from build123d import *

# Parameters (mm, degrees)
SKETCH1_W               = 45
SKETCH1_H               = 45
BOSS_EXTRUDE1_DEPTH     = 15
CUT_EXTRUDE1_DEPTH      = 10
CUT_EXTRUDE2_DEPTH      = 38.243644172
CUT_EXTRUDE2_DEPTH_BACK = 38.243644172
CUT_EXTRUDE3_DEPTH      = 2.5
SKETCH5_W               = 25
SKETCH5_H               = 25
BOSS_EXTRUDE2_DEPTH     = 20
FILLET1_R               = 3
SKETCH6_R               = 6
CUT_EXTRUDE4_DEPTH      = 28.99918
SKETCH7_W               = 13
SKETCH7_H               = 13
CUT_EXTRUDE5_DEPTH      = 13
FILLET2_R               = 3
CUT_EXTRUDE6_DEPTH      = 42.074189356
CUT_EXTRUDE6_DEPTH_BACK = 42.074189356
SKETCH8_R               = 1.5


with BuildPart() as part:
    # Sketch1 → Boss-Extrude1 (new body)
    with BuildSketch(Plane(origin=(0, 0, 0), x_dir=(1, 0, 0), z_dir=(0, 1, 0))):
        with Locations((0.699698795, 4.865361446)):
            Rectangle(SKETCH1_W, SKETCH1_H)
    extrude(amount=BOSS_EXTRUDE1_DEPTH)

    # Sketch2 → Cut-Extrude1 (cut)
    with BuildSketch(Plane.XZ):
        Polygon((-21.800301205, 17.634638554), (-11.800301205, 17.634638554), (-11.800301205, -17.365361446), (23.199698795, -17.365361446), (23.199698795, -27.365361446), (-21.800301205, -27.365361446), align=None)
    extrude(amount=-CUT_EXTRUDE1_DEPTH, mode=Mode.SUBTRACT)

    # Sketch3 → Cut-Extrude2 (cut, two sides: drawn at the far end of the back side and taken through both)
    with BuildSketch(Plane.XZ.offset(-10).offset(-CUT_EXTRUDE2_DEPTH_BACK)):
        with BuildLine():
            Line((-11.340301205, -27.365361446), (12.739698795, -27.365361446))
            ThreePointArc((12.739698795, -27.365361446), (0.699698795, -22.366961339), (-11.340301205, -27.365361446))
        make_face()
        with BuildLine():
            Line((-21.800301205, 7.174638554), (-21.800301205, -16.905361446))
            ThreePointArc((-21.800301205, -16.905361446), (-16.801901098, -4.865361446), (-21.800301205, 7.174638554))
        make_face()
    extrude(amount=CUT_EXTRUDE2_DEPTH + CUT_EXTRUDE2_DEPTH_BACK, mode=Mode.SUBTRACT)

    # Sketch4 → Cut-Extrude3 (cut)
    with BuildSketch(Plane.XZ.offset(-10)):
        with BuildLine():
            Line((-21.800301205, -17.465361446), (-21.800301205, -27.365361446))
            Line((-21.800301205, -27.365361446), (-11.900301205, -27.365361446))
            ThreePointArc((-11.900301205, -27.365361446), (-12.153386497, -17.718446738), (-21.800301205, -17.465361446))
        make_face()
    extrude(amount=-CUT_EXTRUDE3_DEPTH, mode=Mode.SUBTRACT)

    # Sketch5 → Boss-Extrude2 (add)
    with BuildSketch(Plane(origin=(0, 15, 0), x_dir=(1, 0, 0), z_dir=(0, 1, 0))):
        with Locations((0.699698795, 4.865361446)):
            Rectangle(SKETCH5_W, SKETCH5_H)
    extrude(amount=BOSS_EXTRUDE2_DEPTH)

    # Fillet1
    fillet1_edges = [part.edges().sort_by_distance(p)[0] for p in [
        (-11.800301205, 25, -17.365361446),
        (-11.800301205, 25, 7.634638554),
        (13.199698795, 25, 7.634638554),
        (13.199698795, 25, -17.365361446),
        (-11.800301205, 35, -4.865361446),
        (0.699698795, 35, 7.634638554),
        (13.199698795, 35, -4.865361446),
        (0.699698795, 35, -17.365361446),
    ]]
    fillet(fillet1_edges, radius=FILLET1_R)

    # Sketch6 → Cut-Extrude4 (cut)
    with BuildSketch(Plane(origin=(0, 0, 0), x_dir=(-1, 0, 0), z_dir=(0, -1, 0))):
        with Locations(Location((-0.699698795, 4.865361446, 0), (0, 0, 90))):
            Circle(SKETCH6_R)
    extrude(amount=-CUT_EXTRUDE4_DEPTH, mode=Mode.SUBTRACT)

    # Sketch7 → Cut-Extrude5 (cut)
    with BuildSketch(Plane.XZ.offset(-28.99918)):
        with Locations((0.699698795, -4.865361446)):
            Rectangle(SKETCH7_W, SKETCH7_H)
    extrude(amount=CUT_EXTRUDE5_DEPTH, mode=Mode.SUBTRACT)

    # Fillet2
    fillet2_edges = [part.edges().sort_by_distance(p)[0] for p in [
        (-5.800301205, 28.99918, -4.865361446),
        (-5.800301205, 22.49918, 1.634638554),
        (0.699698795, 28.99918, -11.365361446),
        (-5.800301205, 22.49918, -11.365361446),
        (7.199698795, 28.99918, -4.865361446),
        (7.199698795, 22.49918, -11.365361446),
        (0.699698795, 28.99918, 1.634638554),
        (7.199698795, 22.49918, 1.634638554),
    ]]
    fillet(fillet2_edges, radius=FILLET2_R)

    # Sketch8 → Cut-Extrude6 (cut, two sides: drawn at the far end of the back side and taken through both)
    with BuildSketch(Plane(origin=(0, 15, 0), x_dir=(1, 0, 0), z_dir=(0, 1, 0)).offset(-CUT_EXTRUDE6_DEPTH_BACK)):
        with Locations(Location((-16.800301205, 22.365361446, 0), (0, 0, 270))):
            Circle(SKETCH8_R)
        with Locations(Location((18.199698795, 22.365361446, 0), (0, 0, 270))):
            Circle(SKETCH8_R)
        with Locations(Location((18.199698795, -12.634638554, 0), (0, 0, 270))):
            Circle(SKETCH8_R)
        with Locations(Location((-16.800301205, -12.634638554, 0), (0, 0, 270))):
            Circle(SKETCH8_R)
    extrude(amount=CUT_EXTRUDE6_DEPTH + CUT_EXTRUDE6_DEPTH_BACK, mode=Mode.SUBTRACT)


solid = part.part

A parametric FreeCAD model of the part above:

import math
import FreeCAD as App
import Part
import Sketcher
from FreeCAD import Vector
Q = App.Units.Quantity


def edges_at(feature, points):
    """Names of the edges that pass closest to the given points."""
    edges = feature.Shape.Edges
    near = lambda p: min(range(len(edges)), key=lambda i: edges[i].distToShape(Part.Vertex(*p))[0])
    return sorted({f"Edge{near(p) + 1}" for p in points})


def add_polygon(sketch, points):
    """Adds a closed chain of lines whose ends are joined by coincident constraints."""
    first, n = sketch.GeometryCount, len(points)
    for a, b in zip(points, points[1:] + points[:1]):
        sketch.addGeometry(Part.LineSegment(App.Vector(*a, 0), App.Vector(*b, 0)), False)
    for i in range(n):
        sketch.addConstraint(Sketcher.Constraint("Coincident", first + i, 2, first + (i + 1) % n, 1))

doc = App.newDocument("Part")
body = doc.addObject("PartDesign::Body", "Body")

sketch1 = doc.addObject("Sketcher::SketchObject", "Sketch")
body.addObject(sketch1)
sketch1.AttachmentSupport = (doc.XZ_Plane, [""])
sketch1.MapMode = "FlatFace"
add_polygon(sketch1, [(-22, -27), (-22, 18), (23, 18), (23, -27)])
sketch1.addConstraint(Sketcher.Constraint("Vertical", 0))
sketch1.addConstraint(Sketcher.Constraint("Horizontal", 1))
sketch1.addConstraint(Sketcher.Constraint("Vertical", 2))
sketch1.addConstraint(Sketcher.Constraint("Horizontal", 3))
sketch1.addConstraint(Sketcher.Constraint("Equal", 3, 0))
sketch1.addConstraint(Sketcher.Constraint("DistanceX", 1, 1, 1, 2, Q("45 mm")))
sketch1.addConstraint(Sketcher.Constraint("DistanceX", 0, 2, -1, 1, Q("21.800301 mm")))
sketch1.addConstraint(Sketcher.Constraint("DistanceY", -1, 1, 0, 2, Q("17.634639 mm")))
pad1 = doc.addObject("PartDesign::Pad", "Pad")
body.addObject(pad1)
pad1.Profile = sketch1
pad1.Length = 15
pad1.Reversed = True

sketch2 = doc.addObject("Sketcher::SketchObject", "Sketch001")
body.addObject(sketch2)
sketch2.AttachmentSupport = (doc.XZ_Plane, [""])
sketch2.MapMode = "FlatFace"
add_polygon(sketch2, [(-12, 18), (-22, 18), (-22, -27), (23, -27), (23, -17), (-12, -17)])
sketch2.addConstraint(Sketcher.Constraint("Horizontal", 0))
sketch2.addConstraint(Sketcher.Constraint("Vertical", 1))
sketch2.addConstraint(Sketcher.Constraint("Horizontal", 2))
sketch2.addConstraint(Sketcher.Constraint("Vertical", 3))
sketch2.addConstraint(Sketcher.Constraint("Horizontal", 4))
sketch2.addConstraint(Sketcher.Constraint("Vertical", 5))
sketch2.addConstraint(Sketcher.Constraint("Equal", 2, 1))
sketch2.addConstraint(Sketcher.Constraint("Equal", 0, 3))
sketch2.addConstraint(Sketcher.Constraint("DistanceX", 0, 2, 0, 1, Q("10 mm")))
sketch2.addConstraint(Sketcher.Constraint("DistanceX", 2, 1, 2, 2, Q("45 mm")))
sketch2.addConstraint(Sketcher.Constraint("DistanceX", 0, 2, -1, 1, Q("21.800301 mm")))
sketch2.addConstraint(Sketcher.Constraint("DistanceY", -1, 1, 0, 2, Q("17.634639 mm")))
pocket1 = doc.addObject("PartDesign::Pocket", "Pocket")
body.addObject(pocket1)
pocket1.Profile = sketch2
pocket1.Length = 10

sketch3 = doc.addObject("Sketcher::SketchObject", "Sketch002")
body.addObject(sketch3)
sketch3.AttachmentSupport = (doc.XZ_Plane, [""])
sketch3.MapMode = "FlatFace"
sketch3.AttachmentOffset = App.Placement(Vector(0, 0, -10), App.Rotation())
sketch3.addGeometry(Part.LineSegment(Vector(-11, -27, 0), Vector(13, -27, 0)), False)
sketch3.addGeometry(Part.ArcOfCircle(Part.Circle(Vector(1, -39, 0), Vector(0, 0, 1), 17), math.radians(45), math.radians(135)), False)
sketch3.addGeometry(Part.LineSegment(Vector(-22, 7, 0), Vector(-22, -17, 0)), False)
sketch3.addGeometry(Part.ArcOfCircle(Part.Circle(Vector(-34, -5, 0), Vector(0, 0, 1), 17), math.radians(-45), math.radians(45)), False)
sketch3.addConstraint(Sketcher.Constraint("Coincident", 0, 1, 1, 2))
sketch3.addConstraint(Sketcher.Constraint("Coincident", 1, 1, 0, 2))
sketch3.addConstraint(Sketcher.Constraint("Coincident", 2, 1, 3, 2))
sketch3.addConstraint(Sketcher.Constraint("Coincident", 3, 1, 2, 2))
sketch3.addConstraint(Sketcher.Constraint("Horizontal", 0))
sketch3.addConstraint(Sketcher.Constraint("Vertical", 2))
sketch3.addConstraint(Sketcher.Constraint("Equal", 1, 3))
sketch3.addConstraint(Sketcher.Constraint("Equal", 0, 2))
sketch3.addConstraint(Sketcher.Constraint("Radius", 1, Q("17 mm")))
sketch3.addConstraint(Sketcher.Constraint("DistanceX", 0, 1, 0, 2, Q("24.08 mm")))
sketch3.addConstraint(Sketcher.Constraint("DistanceY", 0, 1, 3, 3, Q("22.5 mm")))
sketch3.addConstraint(Sketcher.Constraint("DistanceX", 2, 1, 1, 3, Q("22.5 mm")))
sketch3.addConstraint(Sketcher.Constraint("DistanceX", -1, 1, 1, 3, Q("0.699699 mm")))
sketch3.addConstraint(Sketcher.Constraint("DistanceY", 1, 3, -1, 1, Q("39.366961 mm")))
pocket2 = doc.addObject("PartDesign::Pocket", "Pocket001")
body.addObject(pocket2)
pocket2.Profile = sketch3
pocket2.Type = "ThroughAll"
pocket2.Midplane = True

sketch4 = doc.addObject("Sketcher::SketchObject", "Sketch003")
body.addObject(sketch4)
sketch4.AttachmentSupport = (doc.XZ_Plane, [""])
sketch4.MapMode = "FlatFace"
sketch4.AttachmentOffset = App.Placement(Vector(0, 0, -10), App.Rotation())
sketch4.addGeometry(Part.LineSegment(Vector(-22, -17, 0), Vector(-22, -27, 0)), False)
sketch4.addGeometry(Part.LineSegment(Vector(-22, -27, 0), Vector(-12, -27, 0)), False)
sketch4.addGeometry(Part.ArcOfCircle(Part.Circle(Vector(-17, -23, 0), Vector(0, 0, 1), 7), math.radians(-42), math.radians(132)), False)
sketch4.addConstraint(Sketcher.Constraint("Coincident", 0, 2, 1, 1))
sketch4.addConstraint(Sketcher.Constraint("Coincident", 1, 2, 2, 1))
sketch4.addConstraint(Sketcher.Constraint("Coincident", 2, 2, 0, 1))
sketch4.addConstraint(Sketcher.Constraint("Vertical", 0))
sketch4.addConstraint(Sketcher.Constraint("Horizontal", 1))
sketch4.addConstraint(Sketcher.Constraint("Equal", 1, 0))
sketch4.addConstraint(Sketcher.Constraint("Radius", 2, Q("7.01 mm")))
sketch4.addConstraint(Sketcher.Constraint("DistanceX", 1, 1, 1, 2, Q("9.9 mm")))
sketch4.addConstraint(Sketcher.Constraint("DistanceX", 0, 2, -1, 1, Q("21.800301 mm")))
sketch4.addConstraint(Sketcher.Constraint("DistanceY", 0, 2, -1, 1, Q("27.365361 mm")))
pocket3 = doc.addObject("PartDesign::Pocket", "Pocket002")
body.addObject(pocket3)
pocket3.Profile = sketch4
pocket3.Length = 2.5

sketch5 = doc.addObject("Sketcher::SketchObject", "Sketch004")
body.addObject(sketch5)
sketch5.AttachmentSupport = (doc.XZ_Plane, [""])
sketch5.MapMode = "FlatFace"
sketch5.AttachmentOffset = App.Placement(Vector(0, 0, -15), App.Rotation())
add_polygon(sketch5, [(-12, -17), (-12, 8), (13, 8), (13, -17)])
sketch5.addConstraint(Sketcher.Constraint("Vertical", 0))
sketch5.addConstraint(Sketcher.Constraint("Horizontal", 1))
sketch5.addConstraint(Sketcher.Constraint("Vertical", 2))
sketch5.addConstraint(Sketcher.Constraint("Horizontal", 3))
sketch5.addConstraint(Sketcher.Constraint("Equal", 3, 0))
sketch5.addConstraint(Sketcher.Constraint("DistanceX", 1, 1, 1, 2, Q("25 mm")))
sketch5.addConstraint(Sketcher.Constraint("DistanceX", 0, 2, -1, 1, Q("11.800301 mm")))
sketch5.addConstraint(Sketcher.Constraint("DistanceY", -1, 1, 0, 2, Q("7.634639 mm")))
pad2 = doc.addObject("PartDesign::Pad", "Pad001")
body.addObject(pad2)
pad2.Profile = sketch5
pad2.Length = 20
pad2.Reversed = True
doc.recompute()

fillet = doc.addObject("PartDesign::Fillet", "Fillet")
body.addObject(fillet)
fillet.Base = (pad2, edges_at(pad2, [
    (-11.8, 25, -17.365),
    (-11.8, 25, 7.635),
    (13.2, 25, 7.635),
    (13.2, 25, -17.365),
    (-11.8, 35, -4.865),
    (0.7, 35, 7.635),
    (13.2, 35, -4.865),
    (0.7, 35, -17.365),
]))
fillet.Radius = 3

sketch6 = doc.addObject("Sketcher::SketchObject", "Sketch005")
body.addObject(sketch6)
sketch6.AttachmentSupport = (doc.XZ_Plane, [""])
sketch6.MapMode = "FlatFace"
sketch6.addGeometry(Part.Circle(Vector(1, -5, 0), Vector(0, 0, 1), 6), False)
sketch6.addConstraint(Sketcher.Constraint("Diameter", 0, Q("12 mm")))
sketch6.addConstraint(Sketcher.Constraint("DistanceX", -1, 1, 0, 3, Q("0.699699 mm")))
sketch6.addConstraint(Sketcher.Constraint("DistanceY", 0, 3, -1, 1, Q("4.865361 mm")))
pocket4 = doc.addObject("PartDesign::Pocket", "Pocket003")
body.addObject(pocket4)
pocket4.Profile = sketch6
pocket4.Length = 28.99918

sketch7 = doc.addObject("Sketcher::SketchObject", "Sketch006")
body.addObject(sketch7)
sketch7.AttachmentSupport = (doc.XZ_Plane, [""])
sketch7.MapMode = "FlatFace"
sketch7.AttachmentOffset = App.Placement(Vector(0, 0, -28.99918), App.Rotation())
add_polygon(sketch7, [(-6, 2), (-6, -11), (7, -11), (7, 2)])
sketch7.addConstraint(Sketcher.Constraint("Vertical", 0))
sketch7.addConstraint(Sketcher.Constraint("Horizontal", 1))
sketch7.addConstraint(Sketcher.Constraint("Vertical", 2))
sketch7.addConstraint(Sketcher.Constraint("Horizontal", 3))
sketch7.addConstraint(Sketcher.Constraint("Equal", 3, 0))
sketch7.addConstraint(Sketcher.Constraint("DistanceX", 1, 1, 1, 2, Q("13 mm")))
sketch7.addConstraint(Sketcher.Constraint("DistanceX", 0, 2, -1, 1, Q("5.800301 mm")))
sketch7.addConstraint(Sketcher.Constraint("DistanceY", 0, 2, -1, 1, Q("11.365361 mm")))
pocket5 = doc.addObject("PartDesign::Pocket", "Pocket004")
body.addObject(pocket5)
pocket5.Profile = sketch7
pocket5.Length = 13
pocket5.Reversed = True
doc.recompute()

fillet2 = doc.addObject("PartDesign::Fillet", "Fillet001")
body.addObject(fillet2)
fillet2.Base = (pocket5, edges_at(pocket5, [
    (-5.8, 28.999, -4.865),
    (-5.8, 22.499, 1.635),
    (0.7, 28.999, -11.365),
    (-5.8, 22.499, -11.365),
    (7.2, 28.999, -4.865),
    (7.2, 22.499, -11.365),
    (0.7, 28.999, 1.635),
    (7.2, 22.499, 1.635),
]))
fillet2.Radius = 3

sketch8 = doc.addObject("Sketcher::SketchObject", "Sketch007")
body.addObject(sketch8)
sketch8.AttachmentSupport = (doc.XZ_Plane, [""])
sketch8.MapMode = "FlatFace"
sketch8.AttachmentOffset = App.Placement(Vector(0, 0, -15), App.Rotation())
sketch8.addGeometry(Part.Circle(Vector(-16.8, -22.4, 0), Vector(0, 0, 1), 1.5), False)
sketch8.addGeometry(Part.Circle(Vector(18.2, -22.4, 0), Vector(0, 0, 1), 1.5), False)
sketch8.addGeometry(Part.Circle(Vector(18.2, 12.6, 0), Vector(0, 0, 1), 1.5), False)
sketch8.addGeometry(Part.Circle(Vector(-16.8, 12.6, 0), Vector(0, 0, 1), 1.5), False)
sketch8.addConstraint(Sketcher.Constraint("Equal", 0, 1))
sketch8.addConstraint(Sketcher.Constraint("Equal", 1, 2))
sketch8.addConstraint(Sketcher.Constraint("Equal", 2, 3))
sketch8.addConstraint(Sketcher.Constraint("Horizontal", 0, 3, 1, 3))
sketch8.addConstraint(Sketcher.Constraint("Horizontal", 2, 3, 3, 3))
sketch8.addConstraint(Sketcher.Constraint("Vertical", 1, 3, 2, 3))
sketch8.addConstraint(Sketcher.Constraint("Vertical", 0, 3, 3, 3))
sketch8.addConstraint(Sketcher.Constraint("Diameter", 0, Q("3 mm")))
sketch8.addConstraint(Sketcher.Constraint("DistanceX", 0, 3, 1, 3, Q("35 mm")))
sketch8.addConstraint(Sketcher.Constraint("DistanceY", 1, 3, 2, 3, Q("35 mm")))
sketch8.addConstraint(Sketcher.Constraint("DistanceX", 0, 3, -1, 1, Q("16.800301 mm")))
sketch8.addConstraint(Sketcher.Constraint("DistanceY", 0, 3, -1, 1, Q("22.365361 mm")))
pocket6 = doc.addObject("PartDesign::Pocket", "Pocket005")
body.addObject(pocket6)
pocket6.Profile = sketch8
pocket6.Type = "ThroughAll"
pocket6.Midplane = True

doc.recompute()
